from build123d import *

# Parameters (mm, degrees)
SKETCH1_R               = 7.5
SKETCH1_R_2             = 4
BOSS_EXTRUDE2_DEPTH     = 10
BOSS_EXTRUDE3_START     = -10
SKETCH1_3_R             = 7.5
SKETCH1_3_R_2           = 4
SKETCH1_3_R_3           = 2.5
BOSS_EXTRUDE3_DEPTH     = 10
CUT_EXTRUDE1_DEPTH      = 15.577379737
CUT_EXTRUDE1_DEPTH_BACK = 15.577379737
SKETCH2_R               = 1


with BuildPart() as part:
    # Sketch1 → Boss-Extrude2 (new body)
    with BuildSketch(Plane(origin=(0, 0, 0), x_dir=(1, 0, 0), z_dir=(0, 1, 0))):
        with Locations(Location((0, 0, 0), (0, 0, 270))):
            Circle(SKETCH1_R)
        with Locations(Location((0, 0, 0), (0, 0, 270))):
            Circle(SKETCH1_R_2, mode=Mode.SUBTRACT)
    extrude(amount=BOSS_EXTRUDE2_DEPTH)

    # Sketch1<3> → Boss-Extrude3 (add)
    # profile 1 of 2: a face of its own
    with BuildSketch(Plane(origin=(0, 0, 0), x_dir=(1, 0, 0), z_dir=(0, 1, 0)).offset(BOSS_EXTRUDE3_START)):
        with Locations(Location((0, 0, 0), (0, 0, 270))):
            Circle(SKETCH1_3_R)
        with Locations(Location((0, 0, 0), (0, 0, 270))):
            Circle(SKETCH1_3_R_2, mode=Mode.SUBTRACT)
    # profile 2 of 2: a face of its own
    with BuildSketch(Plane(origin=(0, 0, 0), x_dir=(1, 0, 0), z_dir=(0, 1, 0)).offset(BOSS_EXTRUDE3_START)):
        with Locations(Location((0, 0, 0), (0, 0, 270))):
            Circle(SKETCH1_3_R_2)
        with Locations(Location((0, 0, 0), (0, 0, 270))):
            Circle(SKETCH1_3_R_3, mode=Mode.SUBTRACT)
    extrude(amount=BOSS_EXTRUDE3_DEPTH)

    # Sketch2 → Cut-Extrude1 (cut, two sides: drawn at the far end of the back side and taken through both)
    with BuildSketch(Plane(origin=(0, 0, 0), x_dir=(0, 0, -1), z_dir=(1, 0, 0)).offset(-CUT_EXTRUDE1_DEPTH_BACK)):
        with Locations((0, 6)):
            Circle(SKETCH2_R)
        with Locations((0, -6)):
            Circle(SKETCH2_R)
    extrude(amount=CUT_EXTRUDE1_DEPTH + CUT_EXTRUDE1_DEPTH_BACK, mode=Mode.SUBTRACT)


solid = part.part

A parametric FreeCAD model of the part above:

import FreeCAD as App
import Part
import Sketcher
from FreeCAD import Vector

doc = App.newDocument("Part")
params = doc.addObject("Spreadsheet::Sheet", "Params")
for row, (alias, value) in enumerate([
    ("sketch1_diameter", "15 mm"),
    ("sketch1_diameter2", "8 mm"),
    ("pad1_length", "10 mm"),
    ("sketch2_diameter", "15 mm"),
    ("sketch2_diameter2", "5 mm"),
    ("pad2_length", "10 mm"),
    ("sketch3_diameter", "2 mm"),
], start=1):
    params.set(f"A{row}", alias)
    params.set(f"B{row}", "=" + value)
    params.setAlias(f"B{row}", alias)

body = doc.addObject("PartDesign::Body", "Body")

sketch1 = body.newObject("Sketcher::SketchObject", "Sketch")
sketch1.AttachmentSupport = (doc.getObject("XZ_Plane"), [""])
sketch1.MapMode = "FlatFace"
sketch1.addGeometry(Part.Circle(Vector(0, 0, 0), Vector(0, 0, 1), 7.5), False)
sketch1.addGeometry(Part.Circle(Vector(0, 0, 0), Vector(0, 0, 1), 4), False)
sketch1.addConstraint(Sketcher.Constraint("Coincident", 0, 3, -1, 1))
sketch1.addConstraint(Sketcher.Constraint("Coincident", 1, 3, -1, 1))
sketch1.addConstraint(Sketcher.Constraint("Diameter", 0, 15.0))
sketch1.addConstraint(Sketcher.Constraint("Diameter", 1, 8.0))
sketch1.setExpression("Constraints[2]", "Params.sketch1_diameter")
sketch1.setExpression("Constraints[3]", "Params.sketch1_diameter2")
pad1 = body.newObject("PartDesign::Pad", "Pad")
pad1.Profile = sketch1
pad1.setExpression("Length", "Params.pad1_length")
pad1.Reversed = True

sketch2 = body.newObject("Sketcher::SketchObject", "Sketch001")
sketch2.AttachmentSupport = (doc.getObject("XZ_Plane"), [""])
sketch2.MapMode = "FlatFace"
sketch2.AttachmentOffset = App.Placement(Vector(0, 0, 10), App.Rotation())
sketch2.addGeometry(Part.Circle(Vector(0, 0, 0), Vector(0, 0, 1), 7.5), False)
sketch2.addGeometry(Part.Circle(Vector(0, 0, 0), Vector(0, 0, 1), 2.5), False)
sketch2.addConstraint(Sketcher.Constraint("Coincident", 0, 3, -1, 1))
sketch2.addConstraint(Sketcher.Constraint("Coincident", 1, 3, -1, 1))
sketch2.addConstraint(Sketcher.Constraint("Diameter", 0, 15.0))
sketch2.addConstraint(Sketcher.Constraint("Diameter", 1, 5.0))
sketch2.setExpression("Constraints[2]", "Params.sketch2_diameter")
sketch2.setExpression("Constraints[3]", "Params.sketch2_diameter2")
pad2 = body.newObject("PartDesign::Pad", "Pad001")
pad2.Profile = sketch2
pad2.setExpression("Length", "Params.pad2_length")
pad2.Reversed = True

sketch3 = body.newObject("Sketcher::SketchObject", "Sketch002")
sketch3.AttachmentSupport = (doc.getObject("YZ_Plane"), [""])
sketch3.MapMode = "FlatFace"
sketch3.addGeometry(Part.Circle(Vector(6, 0, 0), Vector(0, 0, 1), 1), False)
sketch3.addGeometry(Part.Circle(Vector(-6, 0, 0), Vector(0, 0, 1), 1), False)
sketch3.addConstraint(Sketcher.Constraint("Equal", 0, 1))
sketch3.addConstraint(Sketcher.Constraint("Symmetric", 0, 3, 1, 3, -1, 1))
sketch3.addConstraint(Sketcher.Constraint("PointOnObject", 0, 3, -1))
sketch3.addConstraint(Sketcher.Constraint("Diameter", 0, 2.0))
sketch3.addConstraint(Sketcher.Constraint("DistanceX", -1, 1, 0, 3, 6.0))
sketch3.setExpression("Constraints[3]", "Params.sketch3_diameter")
pocket1 = body.newObject("PartDesign::Pocket", "Pocket")
pocket1.Profile = sketch3
pocket1.Type = "ThroughAll"
pocket1.Midplane = True

doc.recompute()
